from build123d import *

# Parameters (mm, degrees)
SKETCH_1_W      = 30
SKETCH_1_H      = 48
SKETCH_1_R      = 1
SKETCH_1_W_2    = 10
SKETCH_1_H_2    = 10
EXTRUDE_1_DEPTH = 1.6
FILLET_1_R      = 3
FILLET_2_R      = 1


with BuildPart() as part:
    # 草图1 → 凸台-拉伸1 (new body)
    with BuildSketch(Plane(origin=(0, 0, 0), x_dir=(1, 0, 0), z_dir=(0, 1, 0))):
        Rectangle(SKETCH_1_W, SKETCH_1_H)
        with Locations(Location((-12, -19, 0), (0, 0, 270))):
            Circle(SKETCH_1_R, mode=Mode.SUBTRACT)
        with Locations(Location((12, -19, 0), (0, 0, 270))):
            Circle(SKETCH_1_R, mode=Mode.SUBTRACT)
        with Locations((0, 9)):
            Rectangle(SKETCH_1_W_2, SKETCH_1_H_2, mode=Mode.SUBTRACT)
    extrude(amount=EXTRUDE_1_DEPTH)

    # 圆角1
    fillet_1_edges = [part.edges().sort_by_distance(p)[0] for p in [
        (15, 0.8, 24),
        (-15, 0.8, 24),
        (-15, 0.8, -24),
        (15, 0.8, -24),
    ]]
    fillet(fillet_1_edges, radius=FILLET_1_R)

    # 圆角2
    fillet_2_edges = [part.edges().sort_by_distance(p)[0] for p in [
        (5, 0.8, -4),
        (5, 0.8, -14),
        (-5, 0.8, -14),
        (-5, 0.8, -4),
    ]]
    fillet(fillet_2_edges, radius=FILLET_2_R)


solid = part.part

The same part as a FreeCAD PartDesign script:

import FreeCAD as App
import Part
import Sketcher

V = App.Vector
Q = App.Units.Quantity


def edges_at(feature, points):
    """Names of the edges that pass closest to the given points."""
    edges = feature.Shape.Edges
    near = lambda p: min(range(len(edges)), key=lambda i: edges[i].distToShape(Part.Vertex(*p))[0])
    return sorted({f"Edge{near(p) + 1}" for p in points})

doc = App.newDocument("Part")
body = doc.addObject("PartDesign::Body", "Body")

# Sketch on XZ plane
sketch1 = body.newObject("Sketcher::SketchObject", "Sketch")
sketch1.AttachmentSupport = (doc.getObject("XZ_Plane"), [""])
sketch1.MapMode = "FlatFace"
sketch1.addGeometry(Part.LineSegment(V(-15, -24, 0), V(-15, 24, 0)), False)
sketch1.addGeometry(Part.LineSegment(V(-15, 24, 0), V(15, 24, 0)), False)
sketch1.addGeometry(Part.LineSegment(V(15, 24, 0), V(15, -24, 0)), False)
sketch1.addGeometry(Part.LineSegment(V(15, -24, 0), V(-15, -24, 0)), False)
sketch1.addGeometry(Part.Circle(V(-12, 19, 0), V(0, 0, 1), 1), False)
sketch1.addGeometry(Part.Circle(V(12, 19, 0), V(0, 0, 1), 1), False)
sketch1.addGeometry(Part.LineSegment(V(5, -4, 0), V(-5, -4, 0)), False)
sketch1.addGeometry(Part.LineSegment(V(-5, -4, 0), V(-5, -14, 0)), False)
sketch1.addGeometry(Part.LineSegment(V(-5, -14, 0), V(5, -14, 0)), False)
sketch1.addGeometry(Part.LineSegment(V(5, -14, 0), V(5, -4, 0)), False)
sketch1.addConstraint(Sketcher.Constraint("Coincident", 0, 2, 1, 1))
sketch1.addConstraint(Sketcher.Constraint("Coincident", 1, 2, 2, 1))
sketch1.addConstraint(Sketcher.Constraint("Coincident", 2, 2, 3, 1))
sketch1.addConstraint(Sketcher.Constraint("Coincident", 3, 2, 0, 1))
sketch1.addConstraint(Sketcher.Constraint("Coincident", 6, 2, 7, 1))
sketch1.addConstraint(Sketcher.Constraint("Coincident", 7, 2, 8, 1))
sketch1.addConstraint(Sketcher.Constraint("Coincident", 8, 2, 9, 1))
sketch1.addConstraint(Sketcher.Constraint("Coincident", 9, 2, 6, 1))
sketch1.addConstraint(Sketcher.Constraint("Vertical", 0))
sketch1.addConstraint(Sketcher.Constraint("Horizontal", 1))
sketch1.addConstraint(Sketcher.Constraint("Vertical", 2))
sketch1.addConstraint(Sketcher.Constraint("Horizontal", 3))
sketch1.addConstraint(Sketcher.Constraint("Horizontal", 6))
sketch1.addConstraint(Sketcher.Constraint("Vertical", 7))
sketch1.addConstraint(Sketcher.Constraint("Horizontal", 8))
sketch1.addConstraint(Sketcher.Constraint("Vertical", 9))
sketch1.addConstraint(Sketcher.Constraint("Equal", 4, 5))
sketch1.addConstraint(Sketcher.Constraint("Symmetric", 0, 2, 2, 2, -1, 1))
sketch1.addConstraint(Sketcher.Constraint("Symmetric", 4, 3, 5, 3, -2))
sketch1.addConstraint(Sketcher.Constraint("Equal", 8, 7))
sketch1.addConstraint(Sketcher.Constraint("Diameter", 4, Q("2 mm")))
sketch1.addConstraint(Sketcher.Constraint("DistanceX", 1, 1, 1, 2, Q("30 mm")))
sketch1.addConstraint(Sketcher.Constraint("DistanceX", 6, 2, 6, 1, Q("10 mm")))
sketch1.addConstraint(Sketcher.Constraint("DistanceY", 0, 1, 0, 2, Q("48 mm")))
sketch1.addConstraint(Sketcher.Constraint("DistanceX", 4, 3, -1, 1, Q("12 mm")))
sketch1.addConstraint(Sketcher.Constraint("DistanceY", -1, 1, 4, 3, Q("19 mm")))
sketch1.addConstraint(Sketcher.Constraint("DistanceX", 6, 2, -1, 1, Q("5 mm")))
sketch1.addConstraint(Sketcher.Constraint("DistanceY", 6, 2, -1, 1, Q("4 mm")))
pad1 = body.newObject("PartDesign::Pad", "Pad")
pad1.Profile = sketch1
pad1.Length = 1.6
pad1.Reversed = True
doc.recompute()

fillet = body.newObject("PartDesign::Fillet", "Fillet")
fillet.Base = (pad1, edges_at(pad1, [
    (15, 0.8, 24),
    (-15, 0.8, 24),
    (-15, 0.8, -24),
    (15, 0.8, -24),
]))
fillet.Radius = 3
doc.recompute()

fillet2 = body.newObject("PartDesign::Fillet", "Fillet001")
fillet2.Base = (fillet, edges_at(fillet, [
    (5, 0.8, -4),
    (5, 0.8, -14),
    (-5, 0.8, -14),
    (-5, 0.8, -4),
]))
fillet2.Radius = 1

doc.recompute()
